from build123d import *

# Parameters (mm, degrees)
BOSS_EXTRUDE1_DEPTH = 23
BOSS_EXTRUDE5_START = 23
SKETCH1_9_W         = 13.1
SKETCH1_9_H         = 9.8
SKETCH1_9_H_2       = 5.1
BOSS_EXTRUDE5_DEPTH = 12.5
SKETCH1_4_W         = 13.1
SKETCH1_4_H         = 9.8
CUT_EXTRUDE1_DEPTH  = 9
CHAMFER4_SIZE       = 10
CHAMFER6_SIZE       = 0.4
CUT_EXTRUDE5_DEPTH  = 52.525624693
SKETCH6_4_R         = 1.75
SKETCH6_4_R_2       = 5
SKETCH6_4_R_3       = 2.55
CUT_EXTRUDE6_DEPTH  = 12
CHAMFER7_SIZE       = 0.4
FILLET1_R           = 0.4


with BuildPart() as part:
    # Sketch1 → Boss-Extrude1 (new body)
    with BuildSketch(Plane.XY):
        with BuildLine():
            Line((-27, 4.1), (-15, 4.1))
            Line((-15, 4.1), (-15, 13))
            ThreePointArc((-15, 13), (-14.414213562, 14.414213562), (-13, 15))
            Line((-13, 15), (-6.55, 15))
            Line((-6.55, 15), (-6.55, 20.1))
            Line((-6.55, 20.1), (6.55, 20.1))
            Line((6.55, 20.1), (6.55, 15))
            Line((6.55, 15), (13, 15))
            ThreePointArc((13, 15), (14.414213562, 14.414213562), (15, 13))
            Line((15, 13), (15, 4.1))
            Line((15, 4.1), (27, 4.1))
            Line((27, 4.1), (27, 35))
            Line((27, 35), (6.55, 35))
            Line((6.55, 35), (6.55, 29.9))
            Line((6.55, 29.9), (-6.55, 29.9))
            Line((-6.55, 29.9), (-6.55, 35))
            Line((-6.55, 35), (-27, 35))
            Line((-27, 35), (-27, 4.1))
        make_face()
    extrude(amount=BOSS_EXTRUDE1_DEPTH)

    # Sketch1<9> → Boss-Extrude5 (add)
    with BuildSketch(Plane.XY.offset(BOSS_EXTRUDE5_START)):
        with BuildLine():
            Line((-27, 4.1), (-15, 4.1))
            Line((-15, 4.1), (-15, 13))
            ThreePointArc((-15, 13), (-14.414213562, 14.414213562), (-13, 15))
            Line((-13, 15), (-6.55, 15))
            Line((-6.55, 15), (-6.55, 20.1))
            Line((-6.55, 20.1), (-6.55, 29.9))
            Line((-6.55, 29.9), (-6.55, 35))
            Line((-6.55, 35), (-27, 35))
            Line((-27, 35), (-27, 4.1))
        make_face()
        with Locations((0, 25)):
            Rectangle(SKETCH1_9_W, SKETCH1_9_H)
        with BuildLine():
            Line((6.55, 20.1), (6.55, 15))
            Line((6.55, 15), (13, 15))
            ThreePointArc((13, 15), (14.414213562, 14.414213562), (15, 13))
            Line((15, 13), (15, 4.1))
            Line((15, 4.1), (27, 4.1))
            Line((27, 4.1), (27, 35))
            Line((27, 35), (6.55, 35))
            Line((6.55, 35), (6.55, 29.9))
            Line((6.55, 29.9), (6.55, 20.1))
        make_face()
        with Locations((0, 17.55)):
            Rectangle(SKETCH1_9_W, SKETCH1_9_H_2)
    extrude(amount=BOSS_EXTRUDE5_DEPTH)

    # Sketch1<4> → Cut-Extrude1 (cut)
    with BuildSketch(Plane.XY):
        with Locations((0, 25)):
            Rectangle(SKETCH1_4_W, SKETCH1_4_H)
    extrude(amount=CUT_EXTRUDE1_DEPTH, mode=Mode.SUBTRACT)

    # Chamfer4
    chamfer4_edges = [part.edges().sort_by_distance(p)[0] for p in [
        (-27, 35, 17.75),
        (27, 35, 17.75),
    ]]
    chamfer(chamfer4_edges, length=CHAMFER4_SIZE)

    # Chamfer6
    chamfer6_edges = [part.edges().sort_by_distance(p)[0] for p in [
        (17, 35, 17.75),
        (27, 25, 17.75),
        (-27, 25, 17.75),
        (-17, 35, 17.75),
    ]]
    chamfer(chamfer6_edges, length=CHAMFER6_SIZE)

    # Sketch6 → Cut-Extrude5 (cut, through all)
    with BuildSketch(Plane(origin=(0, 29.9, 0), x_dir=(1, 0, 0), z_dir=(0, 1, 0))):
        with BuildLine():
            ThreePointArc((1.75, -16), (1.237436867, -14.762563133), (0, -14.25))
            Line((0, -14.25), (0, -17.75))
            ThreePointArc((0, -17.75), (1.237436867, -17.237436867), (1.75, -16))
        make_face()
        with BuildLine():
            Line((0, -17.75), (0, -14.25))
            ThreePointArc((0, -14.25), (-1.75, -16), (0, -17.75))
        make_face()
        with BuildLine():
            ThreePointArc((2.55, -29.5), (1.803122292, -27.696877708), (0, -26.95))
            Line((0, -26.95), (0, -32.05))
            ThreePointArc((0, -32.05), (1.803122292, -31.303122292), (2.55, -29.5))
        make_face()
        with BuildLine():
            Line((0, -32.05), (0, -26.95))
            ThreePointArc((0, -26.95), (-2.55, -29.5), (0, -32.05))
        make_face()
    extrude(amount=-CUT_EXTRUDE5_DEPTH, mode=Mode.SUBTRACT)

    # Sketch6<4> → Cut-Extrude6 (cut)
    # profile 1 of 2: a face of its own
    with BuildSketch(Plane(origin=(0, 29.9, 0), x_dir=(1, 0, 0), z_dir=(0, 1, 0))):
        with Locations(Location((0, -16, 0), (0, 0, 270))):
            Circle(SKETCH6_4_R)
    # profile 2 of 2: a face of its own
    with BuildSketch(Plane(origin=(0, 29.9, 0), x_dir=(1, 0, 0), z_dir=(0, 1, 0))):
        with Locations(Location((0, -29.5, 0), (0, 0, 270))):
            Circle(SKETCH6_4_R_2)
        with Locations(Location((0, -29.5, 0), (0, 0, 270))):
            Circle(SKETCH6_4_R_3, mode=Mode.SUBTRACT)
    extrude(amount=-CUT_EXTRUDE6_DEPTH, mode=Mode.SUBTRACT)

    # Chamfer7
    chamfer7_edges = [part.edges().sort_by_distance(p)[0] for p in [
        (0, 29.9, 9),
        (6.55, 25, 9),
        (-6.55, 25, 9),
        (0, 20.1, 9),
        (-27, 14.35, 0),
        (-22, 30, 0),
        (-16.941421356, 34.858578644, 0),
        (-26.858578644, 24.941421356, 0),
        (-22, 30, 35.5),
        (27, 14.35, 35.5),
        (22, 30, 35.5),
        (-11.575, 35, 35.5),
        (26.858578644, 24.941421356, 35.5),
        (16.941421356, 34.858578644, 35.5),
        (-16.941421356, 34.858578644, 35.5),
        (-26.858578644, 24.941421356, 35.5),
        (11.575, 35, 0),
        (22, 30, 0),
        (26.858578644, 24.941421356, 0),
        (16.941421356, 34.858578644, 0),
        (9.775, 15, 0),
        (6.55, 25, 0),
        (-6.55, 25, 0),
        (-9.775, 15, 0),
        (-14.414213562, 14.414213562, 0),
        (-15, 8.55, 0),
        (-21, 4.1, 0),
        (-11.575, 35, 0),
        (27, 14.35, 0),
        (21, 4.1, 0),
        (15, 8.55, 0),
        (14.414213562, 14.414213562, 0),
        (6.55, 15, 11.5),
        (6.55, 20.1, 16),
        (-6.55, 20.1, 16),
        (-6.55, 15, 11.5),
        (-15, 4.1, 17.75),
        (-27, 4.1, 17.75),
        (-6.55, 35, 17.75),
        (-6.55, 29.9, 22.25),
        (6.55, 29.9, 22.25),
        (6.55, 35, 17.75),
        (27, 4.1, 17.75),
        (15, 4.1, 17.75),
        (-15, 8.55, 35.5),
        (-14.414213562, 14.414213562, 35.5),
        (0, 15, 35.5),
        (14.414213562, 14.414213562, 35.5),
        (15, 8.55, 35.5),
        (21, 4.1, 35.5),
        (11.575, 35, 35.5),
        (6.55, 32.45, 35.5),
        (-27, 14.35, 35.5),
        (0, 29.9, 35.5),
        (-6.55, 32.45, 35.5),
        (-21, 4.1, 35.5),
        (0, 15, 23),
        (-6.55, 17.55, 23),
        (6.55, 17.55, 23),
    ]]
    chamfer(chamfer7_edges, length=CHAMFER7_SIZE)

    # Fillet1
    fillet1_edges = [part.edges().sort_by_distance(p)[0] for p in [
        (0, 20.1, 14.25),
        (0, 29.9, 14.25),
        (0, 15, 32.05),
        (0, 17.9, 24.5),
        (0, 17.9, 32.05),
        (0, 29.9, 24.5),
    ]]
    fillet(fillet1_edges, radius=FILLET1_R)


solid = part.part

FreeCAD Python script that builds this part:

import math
import FreeCAD as App
import Part
import Sketcher
Q = App.Units.Quantity


def edges_at(feature, points):
    """Names of the edges that pass closest to the given points."""
    edges = feature.Shape.Edges
    near = lambda p: min(range(len(edges)), key=lambda i: edges[i].distToShape(Part.Vertex(*p))[0])
    return sorted({f"Edge{near(p) + 1}" for p in points})


def add_polygon(sketch, points):
    """Adds a closed chain of lines whose ends are joined by coincident constraints."""
    first, n = sketch.GeometryCount, len(points)
    for a, b in zip(points, points[1:] + points[:1]):
        sketch.addGeometry(Part.LineSegment(App.Vector(*a, 0), App.Vector(*b, 0)), False)
    for i in range(n):
        sketch.addConstraint(Sketcher.Constraint("Coincident", first + i, 2, first + (i + 1) % n, 1))

doc = App.newDocument("Part")
body = doc.addObject("PartDesign::Body", "Body")

sketch1 = body.newObject("Sketcher::SketchObject", "Sketch")
sketch1.AttachmentSupport = (doc.getObject("XY_Plane"), [""])
sketch1.MapMode = "FlatFace"
sketch1.addGeometry(Part.LineSegment(App.Vector(-27, 4.1, 0), App.Vector(-15, 4.1, 0)), False)
sketch1.addGeometry(Part.LineSegment(App.Vector(-15, 4.1, 0), App.Vector(-15, 13, 0)), False)
sketch1.addGeometry(Part.ArcOfCircle(Part.Circle(App.Vector(-13, 13, 0), App.Vector(0, 0, 1), 2), math.radians(90), math.radians(180)), False)
sketch1.addGeometry(Part.LineSegment(App.Vector(-13, 15, 0), App.Vector(-6.5, 15, 0)), False)
sketch1.addGeometry(Part.LineSegment(App.Vector(-6.5, 15, 0), App.Vector(-6.5, 20.1, 0)), False)
sketch1.addGeometry(Part.LineSegment(App.Vector(-6.5, 20.1, 0), App.Vector(6.5, 20.1, 0)), False)
sketch1.addGeometry(Part.LineSegment(App.Vector(6.5, 20.1, 0), App.Vector(6.5, 15, 0)), False)
sketch1.addGeometry(Part.LineSegment(App.Vector(6.5, 15, 0), App.Vector(13, 15, 0)), False)
sketch1.addGeometry(Part.ArcOfCircle(Part.Circle(App.Vector(13, 13, 0), App.Vector(0, 0, 1), 2), math.radians(0), math.radians(90)), False)
sketch1.addGeometry(Part.LineSegment(App.Vector(15, 13, 0), App.Vector(15, 4.1, 0)), False)
sketch1.addGeometry(Part.LineSegment(App.Vector(15, 4.1, 0), App.Vector(27, 4.1, 0)), False)
sketch1.addGeometry(Part.LineSegment(App.Vector(27, 4.1, 0), App.Vector(27, 35, 0)), False)
sketch1.addGeometry(Part.LineSegment(App.Vector(27, 35, 0), App.Vector(6.5, 35, 0)), False)
sketch1.addGeometry(Part.LineSegment(App.Vector(6.5, 35, 0), App.Vector(6.5, 29.9, 0)), False)
sketch1.addGeometry(Part.LineSegment(App.Vector(6.5, 29.9, 0), App.Vector(-6.5, 29.9, 0)), False)
sketch1.addGeometry(Part.LineSegment(App.Vector(-6.5, 29.9, 0), App.Vector(-6.5, 35, 0)), False)
sketch1.addGeometry(Part.LineSegment(App.Vector(-6.5, 35, 0), App.Vector(-27, 35, 0)), False)
sketch1.addGeometry(Part.LineSegment(App.Vector(-27, 35, 0), App.Vector(-27, 4.1, 0)), False)
sketch1.addConstraint(Sketcher.Constraint("Coincident", 0, 2, 1, 1))
sketch1.addConstraint(Sketcher.Constraint("Tangent", 1, 2, 2, 2))
sketch1.addConstraint(Sketcher.Constraint("Tangent", 2, 1, 3, 1))
sketch1.addConstraint(Sketcher.Constraint("Coincident", 3, 2, 4, 1))
sketch1.addConstraint(Sketcher.Constraint("Coincident", 4, 2, 5, 1))
sketch1.addConstraint(Sketcher.Constraint("Coincident", 5, 2, 6, 1))
sketch1.addConstraint(Sketcher.Constraint("Coincident", 6, 2, 7, 1))
sketch1.addConstraint(Sketcher.Constraint("Tangent", 7, 2, 8, 2))
sketch1.addConstraint(Sketcher.Constraint("Tangent", 8, 1, 9, 1))
sketch1.addConstraint(Sketcher.Constraint("Coincident", 9, 2, 10, 1))
sketch1.addConstraint(Sketcher.Constraint("Coincident", 10, 2, 11, 1))
sketch1.addConstraint(Sketcher.Constraint("Coincident", 11, 2, 12, 1))
sketch1.addConstraint(Sketcher.Constraint("Coincident", 12, 2, 13, 1))
sketch1.addConstraint(Sketcher.Constraint("Coincident", 13, 2, 14, 1))
sketch1.addConstraint(Sketcher.Constraint("Coincident", 14, 2, 15, 1))
sketch1.addConstraint(Sketcher.Constraint("Coincident", 15, 2, 16, 1))
sketch1.addConstraint(Sketcher.Constraint("Coincident", 16, 2, 17, 1))
sketch1.addConstraint(Sketcher.Constraint("Coincident", 17, 2, 0, 1))
sketch1.addConstraint(Sketcher.Constraint("Horizontal", 0))
sketch1.addConstraint(Sketcher.Constraint("Vertical", 1))
sketch1.addConstraint(Sketcher.Constraint("Horizontal", 3))
sketch1.addConstraint(Sketcher.Constraint("Vertical", 4))
sketch1.addConstraint(Sketcher.Constraint("Horizontal", 5))
sketch1.addConstraint(Sketcher.Constraint("Vertical", 6))
sketch1.addConstraint(Sketcher.Constraint("Horizontal", 7))
sketch1.addConstraint(Sketcher.Constraint("Vertical", 9))
sketch1.addConstraint(Sketcher.Constraint("Horizontal", 10))
sketch1.addConstraint(Sketcher.Constraint("Vertical", 11))
sketch1.addConstraint(Sketcher.Constraint("Horizontal", 12))
sketch1.addConstraint(Sketcher.Constraint("Vertical", 13))
sketch1.addConstraint(Sketcher.Constraint("Horizontal", 14))
sketch1.addConstraint(Sketcher.Constraint("Vertical", 15))
sketch1.addConstraint(Sketcher.Constraint("Horizontal", 16))
sketch1.addConstraint(Sketcher.Constraint("Vertical", 17))
sketch1.addConstraint(Sketcher.Constraint("Equal", 2, 8))
sketch1.addConstraint(Sketcher.Constraint("Symmetric", 2, 3, 8, 3, -2))
sketch1.addConstraint(Sketcher.Constraint("Symmetric", 12, 2, 15, 2, -2))
sketch1.addConstraint(Sketcher.Constraint("Symmetric", 10, 2, 17, 2, -2))
sketch1.addConstraint(Sketcher.Constraint("Vertical", 6, 2, 12, 2))
sketch1.addConstraint(Sketcher.Constraint("Vertical", 4, 2, 14, 2))
sketch1.addConstraint(Sketcher.Constraint("Equal", 6, 13))
sketch1.addConstraint(Sketcher.Constraint("Radius", 2, Q("2 mm")))
sketch1.addConstraint(Sketcher.Constraint("DistanceX", 0, 1, 0, 2, Q("12 mm")))
sketch1.addConstraint(Sketcher.Constraint("DistanceX", 5, 1, 5, 2, Q("13.1 mm")))
sketch1.addConstraint(Sketcher.Constraint("DistanceY", 1, 1, 1, 2, Q("8.9 mm")))
sketch1.addConstraint(Sketcher.Constraint("DistanceY", 4, 1, 4, 2, Q("5.1 mm")))
sketch1.addConstraint(Sketcher.Constraint("DistanceY", 11, 1, 11, 2, Q("30.9 mm")))
sketch1.addConstraint(Sketcher.Constraint("DistanceX", 2, 3, -1, 1, Q("13 mm")))
sketch1.addConstraint(Sketcher.Constraint("DistanceY", -1, 1, 2, 3, Q("13 mm")))
pad1 = body.newObject("PartDesign::Pad", "Pad")
pad1.Profile = sketch1
pad1.Length = 23

sketch2 = body.newObject("Sketcher::SketchObject", "Sketch001")
sketch2.AttachmentSupport = (doc.getObject("XY_Plane"), [""])
sketch2.MapMode = "FlatFace"
sketch2.AttachmentOffset = App.Placement(App.Vector(0, 0, 23), App.Rotation())
sketch2.addGeometry(Part.LineSegment(App.Vector(-27, 4.1, 0), App.Vector(-15, 4.1, 0)), False)
sketch2.addGeometry(Part.LineSegment(App.Vector(-15, 4.1, 0), App.Vector(-15, 13, 0)), False)
sketch2.addGeometry(Part.ArcOfCircle(Part.Circle(App.Vector(-13, 13, 0), App.Vector(0, 0, 1), 2), math.radians(90), math.radians(180)), False)
sketch2.addGeometry(Part.LineSegment(App.Vector(-13, 15, 0), App.Vector(13, 15, 0)), False)
sketch2.addGeometry(Part.ArcOfCircle(Part.Circle(App.Vector(13, 13, 0), App.Vector(0, 0, 1), 2), math.radians(0), math.radians(90)), False)
sketch2.addGeometry(Part.LineSegment(App.Vector(15, 13, 0), App.Vector(15, 4.1, 0)), False)
sketch2.addGeometry(Part.LineSegment(App.Vector(15, 4.1, 0), App.Vector(27, 4.1, 0)), False)
sketch2.addGeometry(Part.LineSegment(App.Vector(27, 4.1, 0), App.Vector(27, 35, 0)), False)
sketch2.addGeometry(Part.LineSegment(App.Vector(27, 35, 0), App.Vector(6.5, 35, 0)), False)
sketch2.addGeometry(Part.LineSegment(App.Vector(6.5, 35, 0), App.Vector(6.5, 29.9, 0)), False)
sketch2.addGeometry(Part.LineSegment(App.Vector(6.5, 29.9, 0), App.Vector(-6.5, 29.9, 0)), False)
sketch2.addGeometry(Part.LineSegment(App.Vector(-6.5, 29.9, 0), App.Vector(-6.5, 35, 0)), False)
sketch2.addGeometry(Part.LineSegment(App.Vector(-6.5, 35, 0), App.Vector(-27, 35, 0)), False)
sketch2.addGeometry(Part.LineSegment(App.Vector(-27, 35, 0), App.Vector(-27, 4.1, 0)), False)
sketch2.addConstraint(Sketcher.Constraint("Coincident", 0, 2, 1, 1))
sketch2.addConstraint(Sketcher.Constraint("Tangent", 1, 2, 2, 2))
sketch2.addConstraint(Sketcher.Constraint("Tangent", 2, 1, 3, 1))
sketch2.addConstraint(Sketcher.Constraint("Tangent", 3, 2, 4, 2))
sketch2.addConstraint(Sketcher.Constraint("Tangent", 4, 1, 5, 1))
sketch2.addConstraint(Sketcher.Constraint("Coincident", 5, 2, 6, 1))
sketch2.addConstraint(Sketcher.Constraint("Coincident", 6, 2, 7, 1))
sketch2.addConstraint(Sketcher.Constraint("Coincident", 7, 2, 8, 1))
sketch2.addConstraint(Sketcher.Constraint("Coincident", 8, 2, 9, 1))
sketch2.addConstraint(Sketcher.Constraint("Coincident", 9, 2, 10, 1))
sketch2.addConstraint(Sketcher.Constraint("Coincident", 10, 2, 11, 1))
sketch2.addConstraint(Sketcher.Constraint("Coincident", 11, 2, 12, 1))
sketch2.addConstraint(Sketcher.Constraint("Coincident", 12, 2, 13, 1))
sketch2.addConstraint(Sketcher.Constraint("Coincident", 13, 2, 0, 1))
sketch2.addConstraint(Sketcher.Constraint("Horizontal", 0))
sketch2.addConstraint(Sketcher.Constraint("Vertical", 1))
sketch2.addConstraint(Sketcher.Constraint("Horizontal", 3))
sketch2.addConstraint(Sketcher.Constraint("Vertical", 5))
sketch2.addConstraint(Sketcher.Constraint("Horizontal", 6))
sketch2.addConstraint(Sketcher.Constraint("Vertical", 7))
sketch2.addConstraint(Sketcher.Constraint("Horizontal", 8))
sketch2.addConstraint(Sketcher.Constraint("Vertical", 9))
sketch2.addConstraint(Sketcher.Constraint("Horizontal", 10))
sketch2.addConstraint(Sketcher.Constraint("Vertical", 11))
sketch2.addConstraint(Sketcher.Constraint("Horizontal", 12))
sketch2.addConstraint(Sketcher.Constraint("Vertical", 13))
sketch2.addConstraint(Sketcher.Constraint("Equal", 2, 4))
sketch2.addConstraint(Sketcher.Constraint("Symmetric", 0, 2, 5, 2, -2))
sketch2.addConstraint(Sketcher.Constraint("Symmetric", 8, 2, 11, 2, -2))
sketch2.addConstraint(Sketcher.Constraint("Equal", 0, 6))
sketch2.addConstraint(Sketcher.Constraint("Radius", 2, Q("2 mm")))
sketch2.addConstraint(Sketcher.Constraint("DistanceX", 0, 1, 0, 2, Q("12 mm")))
sketch2.addConstraint(Sketcher.Constraint("DistanceX", 3, 1, 3, 2, Q("26 mm")))
sketch2.addConstraint(Sketcher.Constraint("DistanceX", 10, 2, 10, 1, Q("13.1 mm")))
sketch2.addConstraint(Sketcher.Constraint("DistanceY", 1, 1, 1, 2, Q("8.9 mm")))
sketch2.addConstraint(Sketcher.Constraint("DistanceY", 7, 1, 7, 2, Q("30.9 mm")))
sketch2.addConstraint(Sketcher.Constraint("DistanceY", 9, 2, 9, 1, Q("5.1 mm")))
sketch2.addConstraint(Sketcher.Constraint("DistanceY", -1, 1, 2, 3, Q("13 mm")))
pad2 = body.newObject("PartDesign::Pad", "Pad001")
pad2.Profile = sketch2
pad2.Length = 12.5

sketch3 = body.newObject("Sketcher::SketchObject", "Sketch002")
sketch3.AttachmentSupport = (doc.getObject("XY_Plane"), [""])
sketch3.MapMode = "FlatFace"
add_polygon(sketch3, [(-7, 30), (-7, 20), (7, 20), (7, 30)])
sketch3.addConstraint(Sketcher.Constraint("Vertical", 0))
sketch3.addConstraint(Sketcher.Constraint("Horizontal", 1))
sketch3.addConstraint(Sketcher.Constraint("Vertical", 2))
sketch3.addConstraint(Sketcher.Constraint("Horizontal", 3))
sketch3.addConstraint(Sketcher.Constraint("DistanceX", 1, 1, 1, 2, Q("13.1 mm")))
sketch3.addConstraint(Sketcher.Constraint("DistanceY", 0, 2, 0, 1, Q("9.8 mm")))
sketch3.addConstraint(Sketcher.Constraint("DistanceY", -1, 1, 0, 2, Q("20.1 mm")))
sketch3.addConstraint(Sketcher.Constraint("DistanceX", 0, 2, -1, 1, Q("6.55 mm")))
pocket1 = body.newObject("PartDesign::Pocket", "Pocket")
pocket1.Profile = sketch3
pocket1.Length = 9
pocket1.Reversed = True
doc.recompute()

chamfer = body.newObject("PartDesign::Chamfer", "Chamfer")
chamfer.Base = (pocket1, edges_at(pocket1, [(-27, 35, 17.75), (27, 35, 17.75)]))
chamfer.Size = 10
doc.recompute()

chamfer2 = body.newObject("PartDesign::Chamfer", "Chamfer001")
chamfer2.Base = (chamfer, edges_at(chamfer, [
    (17, 35, 17.75),
    (27, 25, 17.75),
    (-27, 25, 17.75),
    (-17, 35, 17.75),
]))
chamfer2.Size = 0.4

sketch4 = body.newObject("Sketcher::SketchObject", "Sketch003")
sketch4.AttachmentSupport = (doc.getObject("XZ_Plane"), [""])
sketch4.MapMode = "FlatFace"
sketch4.AttachmentOffset = App.Placement(App.Vector(0, 0, -29.9), App.Rotation())
sketch4.addGeometry(Part.ArcOfCircle(Part.Circle(App.Vector(0, 16, 0), App.Vector(0, 0, 1), 1.8), math.radians(-90), math.radians(0)), False)
sketch4.addGeometry(Part.ArcOfCircle(Part.Circle(App.Vector(0, 16, 0), App.Vector(0, 0, 1), 1.8), math.radians(90), math.radians(270)), False)
sketch4.addGeometry(Part.ArcOfCircle(Part.Circle(App.Vector(0, 16, 0), App.Vector(0, 0, 1), 1.8), math.radians(0), math.radians(90)), False)
sketch4.addGeometry(Part.ArcOfCircle(Part.Circle(App.Vector(0, 29.5, 0), App.Vector(0, 0, 1), 2.5), math.radians(-90), math.radians(0)), False)
sketch4.addGeometry(Part.ArcOfCircle(Part.Circle(App.Vector(0, 29.5, 0), App.Vector(0, 0, 1), 2.5), math.radians(90), math.radians(270)), False)
sketch4.addGeometry(Part.ArcOfCircle(Part.Circle(App.Vector(0, 29.5, 0), App.Vector(0, 0, 1), 2.5), math.radians(0), math.radians(90)), False)
sketch4.addConstraint(Sketcher.Constraint("Tangent", 0, 1, 1, 2))
sketch4.addConstraint(Sketcher.Constraint("Tangent", 1, 1, 2, 2))
sketch4.addConstraint(Sketcher.Constraint("Tangent", 2, 1, 0, 2))
sketch4.addConstraint(Sketcher.Constraint("Tangent", 3, 1, 4, 2))
sketch4.addConstraint(Sketcher.Constraint("Tangent", 4, 1, 5, 2))
sketch4.addConstraint(Sketcher.Constraint("Tangent", 5, 1, 3, 2))
sketch4.addConstraint(Sketcher.Constraint("PointOnObject", 0, 3, -2))
sketch4.addConstraint(Sketcher.Constraint("PointOnObject", 3, 3, -2))
sketch4.addConstraint(Sketcher.Constraint("PointOnObject", 0, 1, -2))
sketch4.addConstraint(Sketcher.Constraint("PointOnObject", 1, 1, -2))
sketch4.addConstraint(Sketcher.Constraint("PointOnObject", 3, 1, -2))
sketch4.addConstraint(Sketcher.Constraint("PointOnObject", 4, 1, -2))
sketch4.addConstraint(Sketcher.Constraint("Horizontal", 1, 3, 2, 1))
sketch4.addConstraint(Sketcher.Constraint("Horizontal", 4, 3, 5, 1))
sketch4.addConstraint(Sketcher.Constraint("Radius", 0, Q("1.75 mm")))
sketch4.addConstraint(Sketcher.Constraint("Radius", 3, Q("2.55 mm")))
sketch4.addConstraint(Sketcher.Constraint("DistanceY", -1, 1, 0, 3, Q("16 mm")))
sketch4.addConstraint(Sketcher.Constraint("DistanceY", -1, 1, 3, 3, Q("29.5 mm")))
pocket2 = body.newObject("PartDesign::Pocket", "Pocket001")
pocket2.Profile = sketch4
pocket2.Type = "ThroughAll"
pocket2.Reversed = True

sketch5 = body.newObject("Sketcher::SketchObject", "Sketch004")
sketch5.AttachmentSupport = (doc.getObject("XZ_Plane"), [""])
sketch5.MapMode = "FlatFace"
sketch5.AttachmentOffset = App.Placement(App.Vector(0, 0, -29.9), App.Rotation())
sketch5.addGeometry(Part.Circle(App.Vector(0, 16, 0), App.Vector(0, 0, 1), 1.8), False)
sketch5.addGeometry(Part.Circle(App.Vector(0, 29.5, 0), App.Vector(0, 0, 1), 5), False)
sketch5.addGeometry(Part.Circle(App.Vector(0, 29.5, 0), App.Vector(0, 0, 1), 2.5), False)
sketch5.addConstraint(Sketcher.Constraint("Coincident", 2, 3, 1, 3))
sketch5.addConstraint(Sketcher.Constraint("PointOnObject", 0, 3, -2))
sketch5.addConstraint(Sketcher.Constraint("PointOnObject", 1, 3, -2))
sketch5.addConstraint(Sketcher.Constraint("Diameter", 1, Q("10 mm")))
sketch5.addConstraint(Sketcher.Constraint("Diameter", 0, Q("3.5 mm")))
sketch5.addConstraint(Sketcher.Constraint("Diameter", 2, Q("5.1 mm")))
sketch5.addConstraint(Sketcher.Constraint("DistanceY", -1, 1, 0, 3, Q("16 mm")))
sketch5.addConstraint(Sketcher.Constraint("DistanceY", -1, 1, 1, 3, Q("29.5 mm")))
pocket3 = body.newObject("PartDesign::Pocket", "Pocket002")
pocket3.Profile = sketch5
pocket3.Length = 12
pocket3.Reversed = True
doc.recompute()

chamfer3 = body.newObject("PartDesign::Chamfer", "Chamfer002")
chamfer3.Base = (pocket3, edges_at(pocket3, [
    (0, 29.9, 9),
    (6.55, 25, 9),
    (-6.55, 25, 9),
    (0, 20.1, 9),
    (-27, 14.35, 0),
    (-22, 30, 0),
    (-16.941, 34.859, 0),
    (-26.859, 24.941, 0),
    (-22, 30, 35.5),
    (27, 14.35, 35.5),
    (22, 30, 35.5),
    (-11.575, 35, 35.5),
    (26.859, 24.941, 35.5),
    (16.941, 34.859, 35.5),
    (-16.941, 34.859, 35.5),
    (-26.859, 24.941, 35.5),
    (11.575, 35, 0),
    (22, 30, 0),
    (26.859, 24.941, 0),
    (16.941, 34.859, 0),
    (9.775, 15, 0),
    (6.55, 25, 0),
    (-6.55, 25, 0),
    (-9.775, 15, 0),
    (-14.414, 14.414, 0),
    (-15, 8.55, 0),
    (-21, 4.1, 0),
    (-11.575, 35, 0),
    (27, 14.35, 0),
    (21, 4.1, 0),
    (15, 8.55, 0),
    (14.414, 14.414, 0),
    (6.55, 15, 11.5),
    (6.55, 20.1, 16),
    (-6.55, 20.1, 16),
    (-6.55, 15, 11.5),
    (-15, 4.1, 17.75),
    (-27, 4.1, 17.75),
    (-6.55, 35, 17.75),
    (-6.55, 29.9, 22.25),
    (6.55, 29.9, 22.25),
    (6.55, 35, 17.75),
    (27, 4.1, 17.75),
    (15, 4.1, 17.75),
    (-15, 8.55, 35.5),
    (-14.414, 14.414, 35.5),
    (0, 15, 35.5),
    (14.414, 14.414, 35.5),
    (15, 8.55, 35.5),
    (21, 4.1, 35.5),
    (11.575, 35, 35.5),
    (6.55, 32.45, 35.5),
    (-27, 14.35, 35.5),
    (0, 29.9, 35.5),
    (-6.55, 32.45, 35.5),
    (-21, 4.1, 35.5),
    (0, 15, 23),
    (-6.55, 17.55, 23),
    (6.55, 17.55, 23),
]))
chamfer3.Size = 0.4
doc.recompute()

fillet = body.newObject("PartDesign::Fillet", "Fillet")
fillet.Base = (chamfer3, edges_at(chamfer3, [
    (1.237, 20.1, 14.763),
    (1.237, 29.9, 14.763),
    (-2.55, 15, 29.5),
    (0, 17.9, 24.5),
    (-2.55, 17.9, 29.5),
    (0, 29.9, 24.5),
]))
fillet.Radius = 0.4

doc.recompute()
